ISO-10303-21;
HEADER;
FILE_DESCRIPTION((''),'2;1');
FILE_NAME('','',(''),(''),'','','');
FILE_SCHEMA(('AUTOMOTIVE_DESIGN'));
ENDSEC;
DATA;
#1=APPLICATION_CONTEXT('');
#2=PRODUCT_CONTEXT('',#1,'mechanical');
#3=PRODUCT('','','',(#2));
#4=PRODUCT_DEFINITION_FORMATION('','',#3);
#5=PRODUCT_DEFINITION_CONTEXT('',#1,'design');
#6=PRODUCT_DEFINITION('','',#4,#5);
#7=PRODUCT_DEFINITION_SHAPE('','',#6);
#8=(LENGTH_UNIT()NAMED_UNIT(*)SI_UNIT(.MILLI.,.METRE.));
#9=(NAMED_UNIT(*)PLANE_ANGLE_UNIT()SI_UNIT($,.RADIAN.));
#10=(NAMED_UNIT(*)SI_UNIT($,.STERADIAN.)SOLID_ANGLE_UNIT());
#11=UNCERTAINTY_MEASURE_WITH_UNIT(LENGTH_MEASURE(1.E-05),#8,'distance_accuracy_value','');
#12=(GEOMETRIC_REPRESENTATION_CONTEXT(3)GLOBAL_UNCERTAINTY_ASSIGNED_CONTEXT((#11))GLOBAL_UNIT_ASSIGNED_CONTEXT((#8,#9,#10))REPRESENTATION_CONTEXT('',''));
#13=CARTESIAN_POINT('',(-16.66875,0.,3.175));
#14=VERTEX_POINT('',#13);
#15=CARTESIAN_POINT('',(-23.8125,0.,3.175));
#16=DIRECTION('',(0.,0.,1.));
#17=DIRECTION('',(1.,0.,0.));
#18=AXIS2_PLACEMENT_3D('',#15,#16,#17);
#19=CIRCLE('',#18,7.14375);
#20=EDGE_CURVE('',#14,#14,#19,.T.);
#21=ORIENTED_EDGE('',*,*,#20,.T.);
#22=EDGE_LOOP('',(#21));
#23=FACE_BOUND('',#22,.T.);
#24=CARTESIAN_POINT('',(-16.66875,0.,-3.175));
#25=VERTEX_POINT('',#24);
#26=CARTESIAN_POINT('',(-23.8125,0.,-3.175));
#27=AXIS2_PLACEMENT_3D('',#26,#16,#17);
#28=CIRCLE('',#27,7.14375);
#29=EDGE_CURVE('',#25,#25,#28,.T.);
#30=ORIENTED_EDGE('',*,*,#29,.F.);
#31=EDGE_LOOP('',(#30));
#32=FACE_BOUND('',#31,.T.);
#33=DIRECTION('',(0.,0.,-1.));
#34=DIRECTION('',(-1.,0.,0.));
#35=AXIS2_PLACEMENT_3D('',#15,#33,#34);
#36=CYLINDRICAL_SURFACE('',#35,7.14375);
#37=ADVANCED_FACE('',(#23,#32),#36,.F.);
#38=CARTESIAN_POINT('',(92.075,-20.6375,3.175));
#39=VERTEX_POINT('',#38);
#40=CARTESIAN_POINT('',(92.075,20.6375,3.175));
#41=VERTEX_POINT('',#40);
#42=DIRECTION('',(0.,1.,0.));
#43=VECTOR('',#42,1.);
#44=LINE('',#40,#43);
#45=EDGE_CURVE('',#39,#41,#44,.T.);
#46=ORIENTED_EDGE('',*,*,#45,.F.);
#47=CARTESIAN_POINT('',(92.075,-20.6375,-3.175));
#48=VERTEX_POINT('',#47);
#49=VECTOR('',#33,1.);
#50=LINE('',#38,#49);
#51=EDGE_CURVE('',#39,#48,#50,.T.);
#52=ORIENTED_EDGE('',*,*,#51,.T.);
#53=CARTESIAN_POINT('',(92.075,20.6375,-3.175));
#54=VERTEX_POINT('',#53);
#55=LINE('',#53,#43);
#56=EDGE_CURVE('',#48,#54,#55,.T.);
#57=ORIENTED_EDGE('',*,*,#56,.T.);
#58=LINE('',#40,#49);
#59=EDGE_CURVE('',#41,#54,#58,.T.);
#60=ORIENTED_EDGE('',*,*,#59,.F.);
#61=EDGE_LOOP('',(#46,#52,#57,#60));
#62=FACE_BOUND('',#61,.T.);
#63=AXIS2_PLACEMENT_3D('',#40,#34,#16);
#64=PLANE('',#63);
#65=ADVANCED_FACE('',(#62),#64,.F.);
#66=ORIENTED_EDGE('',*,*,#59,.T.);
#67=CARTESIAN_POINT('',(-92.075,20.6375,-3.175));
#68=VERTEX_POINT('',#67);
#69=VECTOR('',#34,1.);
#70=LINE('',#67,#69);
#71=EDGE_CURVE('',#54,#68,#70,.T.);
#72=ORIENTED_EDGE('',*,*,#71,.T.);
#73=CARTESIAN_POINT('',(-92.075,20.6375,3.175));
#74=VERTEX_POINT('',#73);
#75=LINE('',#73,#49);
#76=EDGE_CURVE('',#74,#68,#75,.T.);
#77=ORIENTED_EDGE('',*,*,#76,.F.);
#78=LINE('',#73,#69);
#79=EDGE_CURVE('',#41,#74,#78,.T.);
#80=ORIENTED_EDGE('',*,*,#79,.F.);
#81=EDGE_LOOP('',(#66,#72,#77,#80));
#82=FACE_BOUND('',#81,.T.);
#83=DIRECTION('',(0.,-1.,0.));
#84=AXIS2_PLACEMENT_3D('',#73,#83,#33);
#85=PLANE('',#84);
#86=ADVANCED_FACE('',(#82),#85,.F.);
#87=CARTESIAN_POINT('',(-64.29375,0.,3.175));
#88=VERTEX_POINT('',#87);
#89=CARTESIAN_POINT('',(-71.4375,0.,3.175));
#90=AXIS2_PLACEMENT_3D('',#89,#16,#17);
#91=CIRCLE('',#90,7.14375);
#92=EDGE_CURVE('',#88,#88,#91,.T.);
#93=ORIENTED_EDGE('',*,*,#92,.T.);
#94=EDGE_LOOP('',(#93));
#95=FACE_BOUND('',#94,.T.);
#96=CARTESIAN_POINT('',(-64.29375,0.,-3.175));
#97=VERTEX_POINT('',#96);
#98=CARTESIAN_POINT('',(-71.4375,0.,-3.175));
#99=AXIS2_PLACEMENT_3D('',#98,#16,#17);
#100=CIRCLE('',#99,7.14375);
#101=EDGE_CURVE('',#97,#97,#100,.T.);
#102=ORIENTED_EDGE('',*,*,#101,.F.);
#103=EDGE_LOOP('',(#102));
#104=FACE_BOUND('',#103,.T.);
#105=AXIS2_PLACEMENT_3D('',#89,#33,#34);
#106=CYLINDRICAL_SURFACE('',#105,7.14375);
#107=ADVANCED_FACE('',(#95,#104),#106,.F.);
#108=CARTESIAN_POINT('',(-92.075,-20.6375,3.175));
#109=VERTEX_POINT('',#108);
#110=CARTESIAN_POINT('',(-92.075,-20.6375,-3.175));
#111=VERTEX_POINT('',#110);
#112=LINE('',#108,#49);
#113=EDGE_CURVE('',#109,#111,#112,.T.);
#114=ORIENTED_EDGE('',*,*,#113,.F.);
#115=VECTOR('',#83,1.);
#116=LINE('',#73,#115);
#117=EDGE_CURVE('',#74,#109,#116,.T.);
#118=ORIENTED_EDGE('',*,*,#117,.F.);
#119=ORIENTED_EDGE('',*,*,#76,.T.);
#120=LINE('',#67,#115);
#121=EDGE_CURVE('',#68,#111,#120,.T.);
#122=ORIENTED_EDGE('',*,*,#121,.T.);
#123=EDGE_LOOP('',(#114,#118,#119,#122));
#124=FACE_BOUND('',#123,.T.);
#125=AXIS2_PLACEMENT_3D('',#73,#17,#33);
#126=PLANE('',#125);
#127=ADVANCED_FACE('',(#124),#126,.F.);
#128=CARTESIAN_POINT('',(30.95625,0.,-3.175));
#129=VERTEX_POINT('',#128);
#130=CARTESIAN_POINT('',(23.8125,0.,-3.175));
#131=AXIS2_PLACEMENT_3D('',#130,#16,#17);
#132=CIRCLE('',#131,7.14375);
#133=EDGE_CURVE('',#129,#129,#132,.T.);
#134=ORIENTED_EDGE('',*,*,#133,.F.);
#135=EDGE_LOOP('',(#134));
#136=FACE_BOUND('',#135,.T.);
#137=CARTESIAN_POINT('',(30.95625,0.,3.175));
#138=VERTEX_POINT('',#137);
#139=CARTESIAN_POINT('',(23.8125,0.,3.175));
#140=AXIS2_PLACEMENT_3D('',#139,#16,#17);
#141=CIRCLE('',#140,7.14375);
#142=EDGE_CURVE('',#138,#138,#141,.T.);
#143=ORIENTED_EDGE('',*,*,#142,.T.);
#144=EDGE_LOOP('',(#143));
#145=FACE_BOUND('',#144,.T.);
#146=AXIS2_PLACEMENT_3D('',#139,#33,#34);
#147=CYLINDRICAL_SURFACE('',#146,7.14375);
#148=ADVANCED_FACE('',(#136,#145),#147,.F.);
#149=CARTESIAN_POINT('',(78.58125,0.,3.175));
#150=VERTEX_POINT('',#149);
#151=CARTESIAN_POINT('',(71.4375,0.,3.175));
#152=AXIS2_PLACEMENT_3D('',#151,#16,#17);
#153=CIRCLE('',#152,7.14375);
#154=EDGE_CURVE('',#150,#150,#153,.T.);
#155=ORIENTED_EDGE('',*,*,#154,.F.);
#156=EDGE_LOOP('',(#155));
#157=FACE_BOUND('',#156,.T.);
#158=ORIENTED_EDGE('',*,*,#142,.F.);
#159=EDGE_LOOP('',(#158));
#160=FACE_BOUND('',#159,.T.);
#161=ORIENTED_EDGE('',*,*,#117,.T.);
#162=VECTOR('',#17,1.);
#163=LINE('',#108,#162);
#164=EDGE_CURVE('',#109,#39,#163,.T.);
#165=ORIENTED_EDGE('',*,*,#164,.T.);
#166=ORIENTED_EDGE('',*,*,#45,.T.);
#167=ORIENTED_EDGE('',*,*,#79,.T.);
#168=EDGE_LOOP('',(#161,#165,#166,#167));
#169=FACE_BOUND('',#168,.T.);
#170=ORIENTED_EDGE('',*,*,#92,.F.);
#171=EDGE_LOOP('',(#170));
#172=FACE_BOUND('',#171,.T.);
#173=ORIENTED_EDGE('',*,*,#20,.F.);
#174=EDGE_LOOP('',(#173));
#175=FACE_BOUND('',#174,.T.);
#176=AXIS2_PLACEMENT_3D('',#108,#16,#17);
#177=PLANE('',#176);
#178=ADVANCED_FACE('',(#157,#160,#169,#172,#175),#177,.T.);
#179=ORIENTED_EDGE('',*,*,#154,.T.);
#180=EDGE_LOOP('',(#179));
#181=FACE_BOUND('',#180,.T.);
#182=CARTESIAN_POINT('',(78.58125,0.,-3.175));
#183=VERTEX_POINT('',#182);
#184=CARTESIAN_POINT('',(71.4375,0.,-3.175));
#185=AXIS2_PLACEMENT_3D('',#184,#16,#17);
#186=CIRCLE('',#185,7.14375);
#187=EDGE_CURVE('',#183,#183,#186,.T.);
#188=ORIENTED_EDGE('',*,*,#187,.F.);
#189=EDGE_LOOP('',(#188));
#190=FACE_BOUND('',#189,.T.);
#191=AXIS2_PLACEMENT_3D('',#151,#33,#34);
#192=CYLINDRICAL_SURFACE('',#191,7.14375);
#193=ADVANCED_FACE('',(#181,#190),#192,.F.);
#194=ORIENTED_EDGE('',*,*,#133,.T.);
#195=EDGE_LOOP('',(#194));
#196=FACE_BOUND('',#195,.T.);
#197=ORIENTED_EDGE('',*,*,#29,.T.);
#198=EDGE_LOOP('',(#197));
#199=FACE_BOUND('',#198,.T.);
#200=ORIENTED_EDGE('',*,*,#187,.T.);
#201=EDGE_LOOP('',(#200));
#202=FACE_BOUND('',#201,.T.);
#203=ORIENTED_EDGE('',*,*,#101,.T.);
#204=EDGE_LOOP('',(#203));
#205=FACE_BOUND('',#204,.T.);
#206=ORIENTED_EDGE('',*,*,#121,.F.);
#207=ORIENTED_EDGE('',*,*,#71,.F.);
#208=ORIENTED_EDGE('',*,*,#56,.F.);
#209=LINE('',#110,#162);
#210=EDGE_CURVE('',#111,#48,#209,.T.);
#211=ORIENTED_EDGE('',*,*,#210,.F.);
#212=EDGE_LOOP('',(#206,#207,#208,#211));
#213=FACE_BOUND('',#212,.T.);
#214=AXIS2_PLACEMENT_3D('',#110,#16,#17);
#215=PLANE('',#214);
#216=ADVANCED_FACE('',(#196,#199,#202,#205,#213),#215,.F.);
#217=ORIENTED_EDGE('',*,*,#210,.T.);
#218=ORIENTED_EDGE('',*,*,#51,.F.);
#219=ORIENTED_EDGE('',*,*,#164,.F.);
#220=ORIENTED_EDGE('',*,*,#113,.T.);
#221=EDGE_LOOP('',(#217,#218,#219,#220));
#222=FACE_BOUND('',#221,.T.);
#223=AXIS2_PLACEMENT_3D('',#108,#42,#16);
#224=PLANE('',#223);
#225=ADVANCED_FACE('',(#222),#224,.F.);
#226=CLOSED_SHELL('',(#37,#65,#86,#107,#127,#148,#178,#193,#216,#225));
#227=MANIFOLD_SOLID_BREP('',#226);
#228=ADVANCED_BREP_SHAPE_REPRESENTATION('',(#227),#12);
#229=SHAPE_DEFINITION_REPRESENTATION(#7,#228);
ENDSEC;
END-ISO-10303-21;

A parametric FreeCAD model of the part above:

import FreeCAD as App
import Part
import Sketcher
Q = App.Units.Quantity


def add_polygon(sketch, points):
    """Adds a closed chain of lines whose ends are joined by coincident constraints."""
    first, n = sketch.GeometryCount, len(points)
    for a, b in zip(points, points[1:] + points[:1]):
        sketch.addGeometry(Part.LineSegment(App.Vector(*a, 0), App.Vector(*b, 0)), False)
    for i in range(n):
        sketch.addConstraint(Sketcher.Constraint("Coincident", first + i, 2, first + (i + 1) % n, 1))

doc = App.newDocument("Part")
body = doc.addObject("PartDesign::Body", "Body")

sketch1 = doc.addObject("Sketcher::SketchObject", "Sketch")
body.addObject(sketch1)
sketch1.AttachmentSupport = (doc.XY_Plane, [""])
sketch1.MapMode = "FlatFace"
add_polygon(sketch1, [(-92, 21), (-92, -21), (92, -21), (92, 21)])
sketch1.addGeometry(Part.Circle(App.Vector(-71, 0, 0), App.Vector(0, 0, 1), 7), False)
sketch1.addGeometry(Part.Circle(App.Vector(-24, 0, 0), App.Vector(0, 0, 1), 7), False)
sketch1.addGeometry(Part.Circle(App.Vector(24, 0, 0), App.Vector(0, 0, 1), 7), False)
sketch1.addGeometry(Part.Circle(App.Vector(71, 0, 0), App.Vector(0, 0, 1), 7), False)
sketch1.addConstraint([
    Sketcher.Constraint("Vertical", 0),
    Sketcher.Constraint("Horizontal", 1),
    Sketcher.Constraint("Vertical", 2),
    Sketcher.Constraint("Horizontal", 3),
    Sketcher.Constraint("Equal", 4, 5),
    Sketcher.Constraint("Equal", 5, 6),
    Sketcher.Constraint("Equal", 6, 7),
    Sketcher.Constraint("Symmetric", 5, 3, 6, 3, -1, 1),
    Sketcher.Constraint("Symmetric", 4, 3, 7, 3, -1, 1),
    Sketcher.Constraint("Symmetric", 0, 2, 2, 2, -1, 1),
    Sketcher.Constraint("PointOnObject", 4, 3, -1),
    Sketcher.Constraint("PointOnObject", 5, 3, -1),
    Sketcher.Constraint("Diameter", 4, Q("0.5625 in")),
    Sketcher.Constraint("DistanceX", 1, 1, 1, 2, Q("7.25 in")),
    Sketcher.Constraint("DistanceY", 0, 2, 0, 1, Q("1.625 in")),
    Sketcher.Constraint("DistanceX", 4, 3, 6, 3, Q("3.75 in")),
    Sketcher.Constraint("DistanceX", 4, 3, -1, 1, Q("2.8125 in")),
])
pad1 = doc.addObject("PartDesign::Pad", "Pad")
body.addObject(pad1)
pad1.Profile = sketch1
pad1.Length = Q("0.25 in")
pad1.Midplane = True

doc.recompute()
